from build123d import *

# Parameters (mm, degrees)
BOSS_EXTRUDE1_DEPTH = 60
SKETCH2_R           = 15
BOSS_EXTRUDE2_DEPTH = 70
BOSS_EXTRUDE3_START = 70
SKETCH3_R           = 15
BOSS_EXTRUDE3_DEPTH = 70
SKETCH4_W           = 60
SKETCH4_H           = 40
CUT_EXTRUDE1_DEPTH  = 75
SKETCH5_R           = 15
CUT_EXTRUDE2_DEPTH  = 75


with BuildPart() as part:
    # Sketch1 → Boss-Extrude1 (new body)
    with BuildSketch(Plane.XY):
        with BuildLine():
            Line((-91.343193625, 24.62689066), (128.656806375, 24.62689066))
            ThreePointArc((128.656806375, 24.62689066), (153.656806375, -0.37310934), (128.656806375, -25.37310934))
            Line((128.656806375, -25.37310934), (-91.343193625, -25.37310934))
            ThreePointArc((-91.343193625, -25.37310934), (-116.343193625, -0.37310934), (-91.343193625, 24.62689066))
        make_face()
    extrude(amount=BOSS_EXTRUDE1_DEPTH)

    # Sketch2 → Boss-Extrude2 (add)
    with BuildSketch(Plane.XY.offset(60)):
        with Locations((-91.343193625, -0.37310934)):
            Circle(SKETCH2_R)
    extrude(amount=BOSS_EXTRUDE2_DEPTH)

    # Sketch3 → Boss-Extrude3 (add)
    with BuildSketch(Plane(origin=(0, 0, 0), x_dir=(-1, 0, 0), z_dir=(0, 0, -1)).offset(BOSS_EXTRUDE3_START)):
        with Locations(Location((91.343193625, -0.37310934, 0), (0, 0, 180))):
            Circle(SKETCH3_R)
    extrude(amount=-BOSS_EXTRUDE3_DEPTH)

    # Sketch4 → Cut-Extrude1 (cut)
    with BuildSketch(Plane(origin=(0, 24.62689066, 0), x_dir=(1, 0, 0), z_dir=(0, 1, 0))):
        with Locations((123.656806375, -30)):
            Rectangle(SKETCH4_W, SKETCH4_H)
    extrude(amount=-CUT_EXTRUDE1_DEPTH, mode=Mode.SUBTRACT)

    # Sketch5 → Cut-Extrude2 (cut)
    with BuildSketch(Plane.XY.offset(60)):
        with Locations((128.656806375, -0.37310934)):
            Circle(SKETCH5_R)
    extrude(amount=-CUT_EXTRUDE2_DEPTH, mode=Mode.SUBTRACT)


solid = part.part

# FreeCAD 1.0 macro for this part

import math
import FreeCAD as App
import Part
import Sketcher

doc = App.newDocument("Part")
params = doc.addObject("Spreadsheet::Sheet", "Params")
for row, (alias, value) in enumerate([
    ("sketch1_radius", "25 mm"),
    ("sketch1_width", "220 mm"),
    ("pad1_length", "60 mm"),
    ("sketch2_diameter", "30 mm"),
    ("pad2_length", "70 mm"),
    ("sketch3_diameter", "30 mm"),
    ("pad3_length", "70 mm"),
    ("sketch4_width", "60 mm"),
    ("sketch4_height", "40 mm"),
    ("pocket1_length", "75 mm"),
    ("sketch5_diameter", "30 mm"),
    ("pocket2_length", "75 mm"),
], start=1):
    params.set(f"A{row}", alias)
    params.set(f"B{row}", "=" + value)
    params.setAlias(f"B{row}", alias)

body = doc.addObject("PartDesign::Body", "Body")

sketch1 = body.newObject("Sketcher::SketchObject", "Sketch")
sketch1.AttachmentSupport = (doc.getObject("XY_Plane"), [""])
sketch1.MapMode = "FlatFace"
sketch1.addGeometry([
    Part.LineSegment(App.Vector(129, 25, 0), App.Vector(-91, 25, 0)),
    Part.ArcOfCircle(Part.Circle(App.Vector(-91, 0, 0), App.Vector(0, 0, 1), 25), math.radians(90), math.radians(270)),
    Part.LineSegment(App.Vector(-91, -25, 0), App.Vector(129, -25, 0)),
    Part.ArcOfCircle(Part.Circle(App.Vector(129, 0, 0), App.Vector(0, 0, 1), 25), math.radians(-90), math.radians(90)),
], False)
sketch1.addConstraint([
    Sketcher.Constraint("Tangent", 0, 2, 1, 1),
    Sketcher.Constraint("Tangent", 1, 2, 2, 1),
    Sketcher.Constraint("Tangent", 2, 2, 3, 1),
    Sketcher.Constraint("Tangent", 3, 2, 0, 1),
    Sketcher.Constraint("Horizontal", 0),
    Sketcher.Constraint("Horizontal", 2),
    Sketcher.Constraint("Radius", 1, 25.0),
    Sketcher.Constraint("DistanceX", 0, 2, 0, 1, 220.0),
    Sketcher.Constraint("DistanceY", 1, 3, -1, 1, 0.373109),
    Sketcher.Constraint("DistanceX", 1, 3, -1, 1, 91.343194),
])
sketch1.setExpression("Constraints[6]", "Params.sketch1_radius")
sketch1.setExpression("Constraints[7]", "Params.sketch1_width")
pad1 = body.newObject("PartDesign::Pad", "Pad")
pad1.Profile = sketch1
pad1.setExpression("Length", "Params.pad1_length")

sketch2 = body.newObject("Sketcher::SketchObject", "Sketch001")
sketch2.AttachmentSupport = (doc.getObject("XY_Plane"), [""])
sketch2.MapMode = "FlatFace"
sketch2.AttachmentOffset = App.Placement(App.Vector(0, 0, 60), App.Rotation())
sketch2.addGeometry(Part.Circle(App.Vector(-91, 0, 0), App.Vector(0, 0, 1), 15), False)
sketch2.addConstraint([
    Sketcher.Constraint("Diameter", 0, 30.0),
    Sketcher.Constraint("DistanceY", 0, 3, -1, 1, 0.373109),
    Sketcher.Constraint("DistanceX", 0, 3, -1, 1, 91.343194),
])
sketch2.setExpression("Constraints[0]", "Params.sketch2_diameter")
pad2 = body.newObject("PartDesign::Pad", "Pad001")
pad2.Profile = sketch2
pad2.setExpression("Length", "Params.pad2_length")

sketch3 = body.newObject("Sketcher::SketchObject", "Sketch002")
sketch3.AttachmentSupport = (doc.getObject("XY_Plane"), [""])
sketch3.MapMode = "FlatFace"
sketch3.AttachmentOffset = App.Placement(App.Vector(0, 0, -70), App.Rotation())
sketch3.addGeometry(Part.Circle(App.Vector(-91, 0, 0), App.Vector(0, 0, 1), 15), False)
sketch3.addConstraint([
    Sketcher.Constraint("Diameter", 0, 30.0),
    Sketcher.Constraint("DistanceY", 0, 3, -1, 1, 0.373109),
    Sketcher.Constraint("DistanceX", 0, 3, -1, 1, 91.343194),
])
sketch3.setExpression("Constraints[0]", "Params.sketch3_diameter")
pad3 = body.newObject("PartDesign::Pad", "Pad002")
pad3.Profile = sketch3
pad3.setExpression("Length", "Params.pad3_length")

sketch4 = body.newObject("Sketcher::SketchObject", "Sketch003")
sketch4.AttachmentSupport = (doc.getObject("XZ_Plane"), [""])
sketch4.MapMode = "FlatFace"
sketch4.AttachmentOffset = App.Placement(App.Vector(0, 0, -24.626891), App.Rotation())
sketch4.addGeometry([
    Part.LineSegment(App.Vector(94, 10, 0), App.Vector(94, 50, 0)),
    Part.LineSegment(App.Vector(94, 50, 0), App.Vector(154, 50, 0)),
    Part.LineSegment(App.Vector(154, 50, 0), App.Vector(154, 10, 0)),
    Part.LineSegment(App.Vector(154, 10, 0), App.Vector(94, 10, 0)),
], False)
sketch4.addConstraint([
    Sketcher.Constraint("Coincident", 0, 2, 1, 1),
    Sketcher.Constraint("Coincident", 1, 2, 2, 1),
    Sketcher.Constraint("Coincident", 2, 2, 3, 1),
    Sketcher.Constraint("Coincident", 3, 2, 0, 1),
    Sketcher.Constraint("Vertical", 0),
    Sketcher.Constraint("Horizontal", 1),
    Sketcher.Constraint("Vertical", 2),
    Sketcher.Constraint("Horizontal", 3),
    Sketcher.Constraint("DistanceX", 1, 1, 1, 2, 60.0),
    Sketcher.Constraint("DistanceY", 0, 1, 0, 2, 40.0),
    Sketcher.Constraint("DistanceY", -1, 1, 0, 2, 50.0),
    Sketcher.Constraint("DistanceX", -1, 1, 0, 2, 93.656806),
])
sketch4.setExpression("Constraints[8]", "Params.sketch4_width")
sketch4.setExpression("Constraints[9]", "Params.sketch4_height")
pocket1 = body.newObject("PartDesign::Pocket", "Pocket")
pocket1.Profile = sketch4
pocket1.setExpression("Length", "Params.pocket1_length")
pocket1.Reversed = True

sketch5 = body.newObject("Sketcher::SketchObject", "Sketch004")
sketch5.AttachmentSupport = (doc.getObject("XY_Plane"), [""])
sketch5.MapMode = "FlatFace"
sketch5.AttachmentOffset = App.Placement(App.Vector(0, 0, 60), App.Rotation())
sketch5.addGeometry(Part.Circle(App.Vector(129, 0, 0), App.Vector(0, 0, 1), 15), False)
sketch5.addConstraint([
    Sketcher.Constraint("Diameter", 0, 30.0),
    Sketcher.Constraint("DistanceY", 0, 3, -1, 1, 0.373109),
    Sketcher.Constraint("DistanceX", -1, 1, 0, 3, 128.656806),
])
sketch5.setExpression("Constraints[0]", "Params.sketch5_diameter")
pocket2 = body.newObject("PartDesign::Pocket", "Pocket001")
pocket2.Profile = sketch5
pocket2.setExpression("Length", "Params.pocket2_length")

doc.recompute()
